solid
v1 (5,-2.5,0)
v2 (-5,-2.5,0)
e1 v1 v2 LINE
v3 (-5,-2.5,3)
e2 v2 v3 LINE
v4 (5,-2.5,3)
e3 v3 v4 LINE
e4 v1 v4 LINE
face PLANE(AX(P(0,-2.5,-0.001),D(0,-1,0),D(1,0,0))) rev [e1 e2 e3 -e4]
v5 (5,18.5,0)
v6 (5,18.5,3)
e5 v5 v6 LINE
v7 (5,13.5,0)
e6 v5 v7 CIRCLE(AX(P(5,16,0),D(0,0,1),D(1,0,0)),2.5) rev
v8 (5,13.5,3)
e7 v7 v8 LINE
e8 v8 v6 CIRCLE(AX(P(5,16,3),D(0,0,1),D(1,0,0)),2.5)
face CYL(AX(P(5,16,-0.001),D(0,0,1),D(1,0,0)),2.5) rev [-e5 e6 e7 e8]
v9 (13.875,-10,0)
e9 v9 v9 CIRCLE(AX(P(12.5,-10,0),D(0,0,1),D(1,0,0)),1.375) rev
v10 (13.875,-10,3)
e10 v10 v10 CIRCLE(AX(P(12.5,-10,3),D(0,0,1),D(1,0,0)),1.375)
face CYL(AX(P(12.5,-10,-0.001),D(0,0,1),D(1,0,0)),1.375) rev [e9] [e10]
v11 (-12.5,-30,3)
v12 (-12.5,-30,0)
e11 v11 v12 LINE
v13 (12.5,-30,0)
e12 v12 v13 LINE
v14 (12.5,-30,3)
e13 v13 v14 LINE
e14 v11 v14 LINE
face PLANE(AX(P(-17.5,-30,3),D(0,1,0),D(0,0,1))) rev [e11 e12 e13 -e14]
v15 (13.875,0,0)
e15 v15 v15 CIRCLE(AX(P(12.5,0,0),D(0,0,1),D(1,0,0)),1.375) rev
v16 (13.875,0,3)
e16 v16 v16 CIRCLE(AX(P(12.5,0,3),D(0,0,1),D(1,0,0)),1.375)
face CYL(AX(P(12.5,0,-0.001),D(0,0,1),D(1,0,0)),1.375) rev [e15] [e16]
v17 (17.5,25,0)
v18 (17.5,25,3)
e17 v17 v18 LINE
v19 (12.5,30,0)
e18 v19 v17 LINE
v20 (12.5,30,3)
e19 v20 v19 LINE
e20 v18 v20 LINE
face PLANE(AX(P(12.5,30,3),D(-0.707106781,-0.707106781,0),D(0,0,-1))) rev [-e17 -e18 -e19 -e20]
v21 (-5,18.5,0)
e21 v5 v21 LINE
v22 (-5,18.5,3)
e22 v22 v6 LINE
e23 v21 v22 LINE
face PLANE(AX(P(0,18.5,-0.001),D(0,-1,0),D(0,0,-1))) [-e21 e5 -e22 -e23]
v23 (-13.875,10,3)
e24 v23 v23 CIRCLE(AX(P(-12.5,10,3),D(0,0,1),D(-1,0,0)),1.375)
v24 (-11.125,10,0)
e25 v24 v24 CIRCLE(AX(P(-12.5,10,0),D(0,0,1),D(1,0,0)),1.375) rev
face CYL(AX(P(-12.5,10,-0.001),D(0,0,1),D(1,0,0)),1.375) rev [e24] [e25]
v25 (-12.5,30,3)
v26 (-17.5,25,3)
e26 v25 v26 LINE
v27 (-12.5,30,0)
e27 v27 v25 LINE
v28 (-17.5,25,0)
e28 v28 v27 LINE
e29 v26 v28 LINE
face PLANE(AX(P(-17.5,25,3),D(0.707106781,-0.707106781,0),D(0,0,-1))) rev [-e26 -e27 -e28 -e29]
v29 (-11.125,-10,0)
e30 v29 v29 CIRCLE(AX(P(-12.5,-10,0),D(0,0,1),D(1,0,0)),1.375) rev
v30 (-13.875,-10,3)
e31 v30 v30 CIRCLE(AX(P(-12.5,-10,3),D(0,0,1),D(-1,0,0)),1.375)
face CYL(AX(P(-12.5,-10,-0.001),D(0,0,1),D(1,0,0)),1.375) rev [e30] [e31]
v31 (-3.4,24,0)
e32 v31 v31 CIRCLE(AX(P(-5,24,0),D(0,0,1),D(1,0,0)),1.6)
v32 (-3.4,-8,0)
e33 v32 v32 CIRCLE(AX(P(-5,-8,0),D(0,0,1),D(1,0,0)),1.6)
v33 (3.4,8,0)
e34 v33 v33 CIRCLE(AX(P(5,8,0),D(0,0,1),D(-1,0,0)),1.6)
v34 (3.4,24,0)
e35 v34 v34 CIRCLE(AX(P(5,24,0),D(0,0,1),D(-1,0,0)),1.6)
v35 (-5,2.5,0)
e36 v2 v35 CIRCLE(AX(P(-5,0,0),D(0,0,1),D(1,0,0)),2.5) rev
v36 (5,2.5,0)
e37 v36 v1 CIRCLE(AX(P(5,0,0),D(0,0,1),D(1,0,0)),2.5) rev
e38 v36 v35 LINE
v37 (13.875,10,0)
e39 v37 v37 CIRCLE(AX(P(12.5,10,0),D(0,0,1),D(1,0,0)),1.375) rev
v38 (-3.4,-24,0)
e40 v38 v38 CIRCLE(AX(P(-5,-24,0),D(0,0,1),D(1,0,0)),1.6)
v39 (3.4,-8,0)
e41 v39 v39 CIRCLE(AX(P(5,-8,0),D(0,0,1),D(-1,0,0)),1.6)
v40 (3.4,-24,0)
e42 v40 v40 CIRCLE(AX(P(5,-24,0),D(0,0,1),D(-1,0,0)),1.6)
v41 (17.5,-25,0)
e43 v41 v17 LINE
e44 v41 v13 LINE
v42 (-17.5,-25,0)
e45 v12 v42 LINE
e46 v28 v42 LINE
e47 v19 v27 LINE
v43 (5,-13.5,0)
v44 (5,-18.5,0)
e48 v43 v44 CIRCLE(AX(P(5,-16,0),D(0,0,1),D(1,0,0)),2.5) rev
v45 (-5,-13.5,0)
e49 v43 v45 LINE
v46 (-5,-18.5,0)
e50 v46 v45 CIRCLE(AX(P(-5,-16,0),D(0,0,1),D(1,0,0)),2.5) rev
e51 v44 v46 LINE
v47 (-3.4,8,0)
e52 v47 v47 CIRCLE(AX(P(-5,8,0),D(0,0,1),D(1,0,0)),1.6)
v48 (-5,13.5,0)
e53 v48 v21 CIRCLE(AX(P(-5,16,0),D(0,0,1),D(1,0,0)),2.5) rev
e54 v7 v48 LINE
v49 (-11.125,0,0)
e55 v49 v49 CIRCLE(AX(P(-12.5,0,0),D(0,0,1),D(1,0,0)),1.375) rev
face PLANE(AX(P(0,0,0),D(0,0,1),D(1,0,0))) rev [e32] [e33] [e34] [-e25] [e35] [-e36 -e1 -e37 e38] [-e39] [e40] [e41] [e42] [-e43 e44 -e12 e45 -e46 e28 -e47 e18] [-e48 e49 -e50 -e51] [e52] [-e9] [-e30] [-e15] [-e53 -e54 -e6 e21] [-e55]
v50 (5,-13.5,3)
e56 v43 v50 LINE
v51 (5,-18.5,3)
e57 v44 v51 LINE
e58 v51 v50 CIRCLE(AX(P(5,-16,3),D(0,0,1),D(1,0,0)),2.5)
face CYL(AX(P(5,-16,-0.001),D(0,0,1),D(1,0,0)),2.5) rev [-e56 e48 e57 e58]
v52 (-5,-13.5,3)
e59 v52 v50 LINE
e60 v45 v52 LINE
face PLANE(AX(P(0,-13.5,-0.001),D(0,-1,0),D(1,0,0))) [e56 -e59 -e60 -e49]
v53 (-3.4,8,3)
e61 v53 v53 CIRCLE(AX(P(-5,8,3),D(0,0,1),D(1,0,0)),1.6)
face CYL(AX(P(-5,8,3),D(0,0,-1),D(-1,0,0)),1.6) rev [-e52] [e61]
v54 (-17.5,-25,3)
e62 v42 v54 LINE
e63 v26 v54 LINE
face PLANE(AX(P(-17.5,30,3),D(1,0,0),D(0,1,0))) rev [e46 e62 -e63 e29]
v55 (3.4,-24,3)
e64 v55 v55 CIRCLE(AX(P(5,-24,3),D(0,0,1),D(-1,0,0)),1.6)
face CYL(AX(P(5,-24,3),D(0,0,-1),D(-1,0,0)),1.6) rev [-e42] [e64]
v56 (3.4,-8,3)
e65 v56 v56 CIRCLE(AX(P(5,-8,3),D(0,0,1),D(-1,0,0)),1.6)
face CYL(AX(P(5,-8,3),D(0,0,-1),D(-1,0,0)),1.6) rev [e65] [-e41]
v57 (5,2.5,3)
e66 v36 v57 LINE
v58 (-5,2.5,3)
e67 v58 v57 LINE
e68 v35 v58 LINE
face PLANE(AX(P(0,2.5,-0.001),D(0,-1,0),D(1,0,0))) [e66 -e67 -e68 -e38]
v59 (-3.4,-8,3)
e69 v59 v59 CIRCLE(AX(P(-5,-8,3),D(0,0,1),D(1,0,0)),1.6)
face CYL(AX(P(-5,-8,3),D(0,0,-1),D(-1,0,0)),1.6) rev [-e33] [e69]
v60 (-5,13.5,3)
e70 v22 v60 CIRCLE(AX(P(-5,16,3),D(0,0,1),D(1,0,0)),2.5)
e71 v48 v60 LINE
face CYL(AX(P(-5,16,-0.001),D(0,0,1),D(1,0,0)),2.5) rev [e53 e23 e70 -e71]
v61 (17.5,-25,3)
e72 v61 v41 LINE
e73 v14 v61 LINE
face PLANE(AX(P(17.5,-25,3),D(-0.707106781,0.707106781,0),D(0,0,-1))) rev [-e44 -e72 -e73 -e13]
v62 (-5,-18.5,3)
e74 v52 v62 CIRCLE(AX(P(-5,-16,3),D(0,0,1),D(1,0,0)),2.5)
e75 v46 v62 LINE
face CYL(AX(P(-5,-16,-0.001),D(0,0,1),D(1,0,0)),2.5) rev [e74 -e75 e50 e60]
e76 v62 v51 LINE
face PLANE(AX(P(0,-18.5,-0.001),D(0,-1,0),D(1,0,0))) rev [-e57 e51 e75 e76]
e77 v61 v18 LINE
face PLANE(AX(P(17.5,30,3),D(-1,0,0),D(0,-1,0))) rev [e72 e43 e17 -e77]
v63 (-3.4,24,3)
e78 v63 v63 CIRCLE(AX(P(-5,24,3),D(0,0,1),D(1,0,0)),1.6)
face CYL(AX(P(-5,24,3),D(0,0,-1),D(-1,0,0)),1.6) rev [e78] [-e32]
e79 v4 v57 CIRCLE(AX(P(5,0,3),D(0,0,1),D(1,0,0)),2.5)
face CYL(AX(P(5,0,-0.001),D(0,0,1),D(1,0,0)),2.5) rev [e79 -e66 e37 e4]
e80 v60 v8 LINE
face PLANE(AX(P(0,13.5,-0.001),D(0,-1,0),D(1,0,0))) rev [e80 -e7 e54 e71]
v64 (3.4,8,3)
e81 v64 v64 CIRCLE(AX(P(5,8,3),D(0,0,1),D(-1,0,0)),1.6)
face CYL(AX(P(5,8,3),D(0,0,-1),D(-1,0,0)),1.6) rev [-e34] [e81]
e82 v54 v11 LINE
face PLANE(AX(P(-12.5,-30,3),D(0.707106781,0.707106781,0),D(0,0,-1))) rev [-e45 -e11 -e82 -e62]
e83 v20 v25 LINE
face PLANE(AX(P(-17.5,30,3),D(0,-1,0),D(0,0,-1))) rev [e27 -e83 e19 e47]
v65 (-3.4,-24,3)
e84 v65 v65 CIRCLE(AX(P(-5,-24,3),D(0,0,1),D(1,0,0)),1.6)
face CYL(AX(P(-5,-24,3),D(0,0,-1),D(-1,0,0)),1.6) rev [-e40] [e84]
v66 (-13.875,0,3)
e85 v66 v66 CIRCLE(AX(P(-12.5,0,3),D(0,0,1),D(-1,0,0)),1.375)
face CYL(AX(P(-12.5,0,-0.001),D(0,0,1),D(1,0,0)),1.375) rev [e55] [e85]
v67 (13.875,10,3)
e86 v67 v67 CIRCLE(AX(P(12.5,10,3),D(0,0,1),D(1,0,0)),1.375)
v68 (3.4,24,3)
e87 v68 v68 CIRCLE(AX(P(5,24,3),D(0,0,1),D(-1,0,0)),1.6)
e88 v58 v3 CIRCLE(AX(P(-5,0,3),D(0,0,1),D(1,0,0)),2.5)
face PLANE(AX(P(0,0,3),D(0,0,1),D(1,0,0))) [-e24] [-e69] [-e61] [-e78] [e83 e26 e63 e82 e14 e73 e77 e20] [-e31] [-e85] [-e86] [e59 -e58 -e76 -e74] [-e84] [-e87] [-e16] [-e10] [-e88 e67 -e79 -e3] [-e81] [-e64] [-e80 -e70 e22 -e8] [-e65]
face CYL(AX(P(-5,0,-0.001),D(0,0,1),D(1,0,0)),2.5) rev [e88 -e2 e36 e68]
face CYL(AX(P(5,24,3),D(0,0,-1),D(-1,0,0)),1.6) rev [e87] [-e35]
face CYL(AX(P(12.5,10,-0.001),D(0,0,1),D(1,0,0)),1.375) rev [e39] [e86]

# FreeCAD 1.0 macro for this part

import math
import FreeCAD as App
import Part
import Sketcher
from FreeCAD import Vector
Q = App.Units.Quantity


def edges_at(feature, points):
    """Names of the edges that pass closest to the given points."""
    edges = feature.Shape.Edges
    near = lambda p: min(range(len(edges)), key=lambda i: edges[i].distToShape(Part.Vertex(*p))[0])
    return sorted({f"Edge{near(p) + 1}" for p in points})


def add_polygon(sketch, points):
    """Adds a closed chain of lines whose ends are joined by coincident constraints."""
    first, n = sketch.GeometryCount, len(points)
    for a, b in zip(points, points[1:] + points[:1]):
        sketch.addGeometry(Part.LineSegment(App.Vector(*a, 0), App.Vector(*b, 0)), False)
    for i in range(n):
        sketch.addConstraint(Sketcher.Constraint("Coincident", first + i, 2, first + (i + 1) % n, 1))

doc = App.newDocument("Part")
body = doc.addObject("PartDesign::Body", "Body")

# Sketch on XY plane
sketch1 = body.newObject("Sketcher::SketchObject", "Sketch")
sketch1.AttachmentSupport = (doc.getObject("XY_Plane"), [""])
sketch1.MapMode = "FlatFace"
add_polygon(sketch1, [(-17.5, 30), (-17.5, -30), (17.5, -30), (17.5, 30)])  # lines 0-3
sketch1.addGeometry(Part.Circle(Vector(-5, -24, 0), Vector(0, 0, 1), 1.6), False)  # 4
sketch1.addGeometry(Part.Circle(Vector(-5, -8, 0), Vector(0, 0, 1), 1.6), False)  # 5
sketch1.addGeometry(Part.Circle(Vector(5, -24, 0), Vector(0, 0, 1), 1.6), False)  # 6
sketch1.addGeometry(Part.Circle(Vector(5, -8, 0), Vector(0, 0, 1), 1.6), False)  # 7
sketch1.addGeometry(Part.Circle(Vector(-5, 8, 0), Vector(0, 0, 1), 1.6), False)  # 8
sketch1.addGeometry(Part.Circle(Vector(-5, 24, 0), Vector(0, 0, 1), 1.6), False)  # 9
sketch1.addGeometry(Part.Circle(Vector(5, 8, 0), Vector(0, 0, 1), 1.6), False)  # 10
sketch1.addGeometry(Part.Circle(Vector(5, 24, 0), Vector(0, 0, 1), 1.6), False)  # 11
sketch1.addConstraint([
    Sketcher.Constraint("Vertical", 0),
    Sketcher.Constraint("Horizontal", 1),
    Sketcher.Constraint("Vertical", 2),
    Sketcher.Constraint("Horizontal", 3),
    Sketcher.Constraint("Equal", 4, 5),
    Sketcher.Constraint("Equal", 5, 6),
    Sketcher.Constraint("Equal", 6, 7),
    Sketcher.Constraint("Equal", 7, 8),
    Sketcher.Constraint("Equal", 8, 9),
    Sketcher.Constraint("Equal", 9, 10),
    Sketcher.Constraint("Equal", 10, 11),
    Sketcher.Constraint("Symmetric", 7, 3, 8, 3, -1, 1),
    Sketcher.Constraint("Symmetric", 6, 3, 9, 3, -1, 1),
    Sketcher.Constraint("Symmetric", 5, 3, 10, 3, -1, 1),
    Sketcher.Constraint("Symmetric", 4, 3, 11, 3, -1, 1),
    Sketcher.Constraint("Symmetric", 0, 2, 2, 2, -1, 1),
    Sketcher.Constraint("Symmetric", 4, 3, 6, 3, -2),
    Sketcher.Constraint("Symmetric", 5, 3, 7, 3, -2),
    Sketcher.Constraint("Vertical", 4, 3, 5, 3),
    Sketcher.Constraint("Diameter", 4, Q("3.2 mm")),
    Sketcher.Constraint("DistanceX", 1, 1, 1, 2, Q("35 mm")),
    Sketcher.Constraint("DistanceY", 0, 2, 0, 1, Q("60 mm")),
    Sketcher.Constraint("DistanceX", 4, 3, -1, 1, Q("5 mm")),
    Sketcher.Constraint("DistanceY", 4, 3, -1, 1, Q("24 mm")),
    Sketcher.Constraint("DistanceY", 5, 3, -1, 1, Q("8 mm")),
])
pad1 = body.newObject("PartDesign::Pad", "Pad")
pad1.Profile = sketch1
pad1.Length = 3

# Sketch on XY plane
sketch2 = body.newObject("Sketcher::SketchObject", "Sketch001")
sketch2.AttachmentSupport = (doc.getObject("XY_Plane"), [""])
sketch2.MapMode = "FlatFace"
sketch2.AttachmentOffset = App.Placement(Vector(0, 0, 3), App.Rotation())
sketch2.addGeometry(Part.Circle(Vector(12.5, 0, 0), Vector(0, 0, 1), 1.4), False)
sketch2.addConstraint([
    Sketcher.Constraint("PointOnObject", 0, 3, -1),
    Sketcher.Constraint("Diameter", 0, Q("2.75 mm")),
    Sketcher.Constraint("DistanceX", -1, 1, 0, 3, Q("12.5 mm")),
])
pocket1 = body.newObject("PartDesign::Pocket", "Pocket")
pocket1.Profile = sketch2
pocket1.Type = "UpToFirst"

# Sketch on XY plane
sketch3 = body.newObject("Sketcher::SketchObject", "Sketch002")
sketch3.AttachmentSupport = (doc.getObject("XY_Plane"), [""])
sketch3.MapMode = "FlatFace"
sketch3.AttachmentOffset = App.Placement(Vector(0, 0, 3), App.Rotation())
sketch3.addGeometry(Part.Circle(Vector(-12.5, 0, 0), Vector(0, 0, 1), 1.4), False)
sketch3.addConstraint([
    Sketcher.Constraint("PointOnObject", 0, 3, -1),
    Sketcher.Constraint("Diameter", 0, Q("2.75 mm")),
    Sketcher.Constraint("DistanceX", 0, 3, -1, 1, Q("12.5 mm")),
])
pocket2 = body.newObject("PartDesign::Pocket", "Pocket001")
pocket2.Profile = sketch3
pocket2.Type = "UpToFirst"

# Sketch on XY plane
sketch4 = body.newObject("Sketcher::SketchObject", "Sketch003")
sketch4.AttachmentSupport = (doc.getObject("XY_Plane"), [""])
sketch4.MapMode = "FlatFace"
sketch4.AttachmentOffset = App.Placement(Vector(0, 0, 3), App.Rotation())
sketch4.addGeometry(Part.Circle(Vector(-12.5, 10, 0), Vector(0, 0, 1), 1.4), False)
sketch4.addConstraint([
    Sketcher.Constraint("Diameter", 0, Q("2.75 mm")),
    Sketcher.Constraint("DistanceY", -1, 1, 0, 3, Q("10 mm")),
    Sketcher.Constraint("DistanceX", 0, 3, -1, 1, Q("12.5 mm")),
])
pocket3 = body.newObject("PartDesign::Pocket", "Pocket002")
pocket3.Profile = sketch4
pocket3.Type = "UpToFirst"

# Sketch on XY plane
sketch5 = body.newObject("Sketcher::SketchObject", "Sketch004")
sketch5.AttachmentSupport = (doc.getObject("XY_Plane"), [""])
sketch5.MapMode = "FlatFace"
sketch5.AttachmentOffset = App.Placement(Vector(0, 0, 3), App.Rotation())
sketch5.addGeometry(Part.Circle(Vector(12.5, 10, 0), Vector(0, 0, 1), 1.4), False)
sketch5.addConstraint([
    Sketcher.Constraint("Diameter", 0, Q("2.75 mm")),
    Sketcher.Constraint("DistanceY", -1, 1, 0, 3, Q("10 mm")),
    Sketcher.Constraint("DistanceX", -1, 1, 0, 3, Q("12.5 mm")),
])
pocket4 = body.newObject("PartDesign::Pocket", "Pocket003")
pocket4.Profile = sketch5
pocket4.Type = "UpToFirst"

# Sketch on XY plane
sketch6 = body.newObject("Sketcher::SketchObject", "Sketch005")
sketch6.AttachmentSupport = (doc.getObject("XY_Plane"), [""])
sketch6.MapMode = "FlatFace"
sketch6.AttachmentOffset = App.Placement(Vector(0, 0, 3), App.Rotation())
sketch6.addGeometry(Part.Circle(Vector(-12.5, -10, 0), Vector(0, 0, 1), 1.4), False)
sketch6.addConstraint([
    Sketcher.Constraint("Diameter", 0, Q("2.75 mm")),
    Sketcher.Constraint("DistanceY", 0, 3, -1, 1, Q("10 mm")),
    Sketcher.Constraint("DistanceX", 0, 3, -1, 1, Q("12.5 mm")),
])
pocket5 = body.newObject("PartDesign::Pocket", "Pocket004")
pocket5.Profile = sketch6
pocket5.Type = "UpToFirst"

# Sketch on XY plane
sketch7 = body.newObject("Sketcher::SketchObject", "Sketch006")
sketch7.AttachmentSupport = (doc.getObject("XY_Plane"), [""])
sketch7.MapMode = "FlatFace"
sketch7.AttachmentOffset = App.Placement(Vector(0, 0, 3), App.Rotation())
sketch7.addGeometry(Part.Circle(Vector(12.5, -10, 0), Vector(0, 0, 1), 1.4), False)
sketch7.addConstraint([
    Sketcher.Constraint("Diameter", 0, Q("2.75 mm")),
    Sketcher.Constraint("DistanceY", 0, 3, -1, 1, Q("10 mm")),
    Sketcher.Constraint("DistanceX", -1, 1, 0, 3, Q("12.5 mm")),
])
pocket6 = body.newObject("PartDesign::Pocket", "Pocket005")
pocket6.Profile = sketch7
pocket6.Type = "UpToFirst"
doc.recompute()

chamfer = body.newObject("PartDesign::Chamfer", "Chamfer")
chamfer.Base = (pocket6, edges_at(pocket6, [
    (17.5, -30, 1.5),
    (-17.5, -30, 1.5),
    (-17.5, 30, 1.5),
    (17.5, 30, 1.5),
]))
chamfer.Size = 5

# Sketch on XY plane
sketch8 = body.newObject("Sketcher::SketchObject", "Sketch007")
sketch8.AttachmentSupport = (doc.getObject("XY_Plane"), [""])
sketch8.MapMode = "FlatFace"
sketch8.AttachmentOffset = App.Placement(Vector(0, 0, 3), App.Rotation())
sketch8.addGeometry([
    Part.LineSegment(Vector(-5, -2.5, 0), Vector(5, -2.5, 0)),
    Part.ArcOfCircle(Part.Circle(Vector(5, 0, 0), Vector(0, 0, 1), 2.5), math.radians(-90), math.radians(90)),
    Part.LineSegment(Vector(5, 2.5, 0), Vector(-5, 2.5, 0)),
    Part.ArcOfCircle(Part.Circle(Vector(-5, 0, 0), Vector(0, 0, 1), 2.5), math.radians(90), math.radians(270)),
], False)
sketch8.addConstraint([
    Sketcher.Constraint("Tangent", 0, 2, 1, 1),
    Sketcher.Constraint("Tangent", 1, 2, 2, 1),
    Sketcher.Constraint("Tangent", 2, 2, 3, 1),
    Sketcher.Constraint("Tangent", 3, 2, 0, 1),
    Sketcher.Constraint("Horizontal", 0),
    Sketcher.Constraint("Horizontal", 2),
    Sketcher.Constraint("Symmetric", 1, 3, 3, 3, -1, 1),
    Sketcher.Constraint("Radius", 1, Q("2.5 mm")),
    Sketcher.Constraint("DistanceX", 0, 1, 0, 2, Q("10 mm")),
])
pocket7 = body.newObject("PartDesign::Pocket", "Pocket006")
pocket7.Profile = sketch8
pocket7.Type = "UpToFirst"

# Sketch on XY plane
sketch9 = body.newObject("Sketcher::SketchObject", "Sketch008")
sketch9.AttachmentSupport = (doc.getObject("XY_Plane"), [""])
sketch9.MapMode = "FlatFace"
sketch9.AttachmentOffset = App.Placement(Vector(0, 0, 3), App.Rotation())
sketch9.addGeometry([
    Part.LineSegment(Vector(-5, 13.5, 0), Vector(5, 13.5, 0)),
    Part.ArcOfCircle(Part.Circle(Vector(5, 16, 0), Vector(0, 0, 1), 2.5), math.radians(-90), math.radians(90)),
    Part.LineSegment(Vector(5, 18.5, 0), Vector(-5, 18.5, 0)),
    Part.ArcOfCircle(Part.Circle(Vector(-5, 16, 0), Vector(0, 0, 1), 2.5), math.radians(90), math.radians(270)),
], False)
sketch9.addConstraint([
    Sketcher.Constraint("Tangent", 0, 2, 1, 1),
    Sketcher.Constraint("Tangent", 1, 2, 2, 1),
    Sketcher.Constraint("Tangent", 2, 2, 3, 1),
    Sketcher.Constraint("Tangent", 3, 2, 0, 1),
    Sketcher.Constraint("Horizontal", 0),
    Sketcher.Constraint("Horizontal", 2),
    Sketcher.Constraint("Radius", 1, Q("2.5 mm")),
    Sketcher.Constraint("DistanceX", 0, 1, 0, 2, Q("10 mm")),
    Sketcher.Constraint("DistanceX", -1, 1, 1, 3, Q("5 mm")),
    Sketcher.Constraint("DistanceY", -1, 1, 1, 3, Q("16 mm")),
])
pocket8 = body.newObject("PartDesign::Pocket", "Pocket007")
pocket8.Profile = sketch9
pocket8.Type = "UpToFirst"

# Sketch on XY plane
sketch10 = body.newObject("Sketcher::SketchObject", "Sketch009")
sketch10.AttachmentSupport = (doc.getObject("XY_Plane"), [""])
sketch10.MapMode = "FlatFace"
sketch10.AttachmentOffset = App.Placement(Vector(0, 0, 3), App.Rotation())
sketch10.addGeometry([
    Part.LineSegment(Vector(-5, -18.5, 0), Vector(5, -18.5, 0)),
    Part.ArcOfCircle(Part.Circle(Vector(5, -16, 0), Vector(0, 0, 1), 2.5), math.radians(-90), math.radians(90)),
    Part.LineSegment(Vector(5, -13.5, 0), Vector(-5, -13.5, 0)),
    Part.ArcOfCircle(Part.Circle(Vector(-5, -16, 0), Vector(0, 0, 1), 2.5), math.radians(90), math.radians(270)),
], False)
sketch10.addConstraint([
    Sketcher.Constraint("Tangent", 0, 2, 1, 1),
    Sketcher.Constraint("Tangent", 1, 2, 2, 1),
    Sketcher.Constraint("Tangent", 2, 2, 3, 1),
    Sketcher.Constraint("Tangent", 3, 2, 0, 1),
    Sketcher.Constraint("Horizontal", 0),
    Sketcher.Constraint("Horizontal", 2),
    Sketcher.Constraint("Radius", 1, Q("2.5 mm")),
    Sketcher.Constraint("DistanceX", 0, 1, 0, 2, Q("10 mm")),
    Sketcher.Constraint("DistanceX", -1, 1, 1, 3, Q("5 mm")),
    Sketcher.Constraint("DistanceY", 1, 3, -1, 1, Q("16 mm")),
])
pocket9 = body.newObject("PartDesign::Pocket", "Pocket008")
pocket9.Profile = sketch10
pocket9.Type = "UpToFirst"

doc.recompute()
